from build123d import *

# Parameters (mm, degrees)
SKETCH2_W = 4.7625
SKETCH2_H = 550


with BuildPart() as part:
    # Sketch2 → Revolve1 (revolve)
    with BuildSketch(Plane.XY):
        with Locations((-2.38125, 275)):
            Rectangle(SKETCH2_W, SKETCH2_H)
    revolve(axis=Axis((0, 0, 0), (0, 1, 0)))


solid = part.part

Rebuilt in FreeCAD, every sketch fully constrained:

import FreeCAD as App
import Part
import Sketcher
Q = App.Units.Quantity


def add_polygon(sketch, points):
    """Adds a closed chain of lines whose ends are joined by coincident constraints."""
    first, n = sketch.GeometryCount, len(points)
    for a, b in zip(points, points[1:] + points[:1]):
        sketch.addGeometry(Part.LineSegment(App.Vector(*a, 0), App.Vector(*b, 0)), False)
    for i in range(n):
        sketch.addConstraint(Sketcher.Constraint("Coincident", first + i, 2, first + (i + 1) % n, 1))

doc = App.newDocument("Part")
body = doc.addObject("PartDesign::Body", "Body")

# Sketch on XY plane
sketch1 = doc.addObject("Sketcher::SketchObject", "Sketch")
body.addObject(sketch1)
sketch1.AttachmentSupport = (doc.XY_Plane, [""])
sketch1.MapMode = "FlatFace"
add_polygon(sketch1, [(-4.8, 550), (-4.8, 0), (0, 0), (0, 550)])  # lines 0-3
sketch1.addConstraint([
    Sketcher.Constraint("Vertical", 0),
    Sketcher.Constraint("Horizontal", 1),
    Sketcher.Constraint("Vertical", 2),
    Sketcher.Constraint("Horizontal", 3),
    Sketcher.Constraint("Coincident", 1, 2, -1, 1),
    Sketcher.Constraint("DistanceY", 0, 2, 0, 1, Q("550 mm")),
    Sketcher.Constraint("DistanceX", 1, 1, 1, 2, Q("4.7625 mm")),
])
revolution = doc.addObject("PartDesign::Revolution", "Revolution")
body.addObject(revolution)
revolution.Profile = sketch1
revolution.ReferenceAxis = (sketch1, ["V_Axis"])
revolution.Angle = 360

doc.recompute()
